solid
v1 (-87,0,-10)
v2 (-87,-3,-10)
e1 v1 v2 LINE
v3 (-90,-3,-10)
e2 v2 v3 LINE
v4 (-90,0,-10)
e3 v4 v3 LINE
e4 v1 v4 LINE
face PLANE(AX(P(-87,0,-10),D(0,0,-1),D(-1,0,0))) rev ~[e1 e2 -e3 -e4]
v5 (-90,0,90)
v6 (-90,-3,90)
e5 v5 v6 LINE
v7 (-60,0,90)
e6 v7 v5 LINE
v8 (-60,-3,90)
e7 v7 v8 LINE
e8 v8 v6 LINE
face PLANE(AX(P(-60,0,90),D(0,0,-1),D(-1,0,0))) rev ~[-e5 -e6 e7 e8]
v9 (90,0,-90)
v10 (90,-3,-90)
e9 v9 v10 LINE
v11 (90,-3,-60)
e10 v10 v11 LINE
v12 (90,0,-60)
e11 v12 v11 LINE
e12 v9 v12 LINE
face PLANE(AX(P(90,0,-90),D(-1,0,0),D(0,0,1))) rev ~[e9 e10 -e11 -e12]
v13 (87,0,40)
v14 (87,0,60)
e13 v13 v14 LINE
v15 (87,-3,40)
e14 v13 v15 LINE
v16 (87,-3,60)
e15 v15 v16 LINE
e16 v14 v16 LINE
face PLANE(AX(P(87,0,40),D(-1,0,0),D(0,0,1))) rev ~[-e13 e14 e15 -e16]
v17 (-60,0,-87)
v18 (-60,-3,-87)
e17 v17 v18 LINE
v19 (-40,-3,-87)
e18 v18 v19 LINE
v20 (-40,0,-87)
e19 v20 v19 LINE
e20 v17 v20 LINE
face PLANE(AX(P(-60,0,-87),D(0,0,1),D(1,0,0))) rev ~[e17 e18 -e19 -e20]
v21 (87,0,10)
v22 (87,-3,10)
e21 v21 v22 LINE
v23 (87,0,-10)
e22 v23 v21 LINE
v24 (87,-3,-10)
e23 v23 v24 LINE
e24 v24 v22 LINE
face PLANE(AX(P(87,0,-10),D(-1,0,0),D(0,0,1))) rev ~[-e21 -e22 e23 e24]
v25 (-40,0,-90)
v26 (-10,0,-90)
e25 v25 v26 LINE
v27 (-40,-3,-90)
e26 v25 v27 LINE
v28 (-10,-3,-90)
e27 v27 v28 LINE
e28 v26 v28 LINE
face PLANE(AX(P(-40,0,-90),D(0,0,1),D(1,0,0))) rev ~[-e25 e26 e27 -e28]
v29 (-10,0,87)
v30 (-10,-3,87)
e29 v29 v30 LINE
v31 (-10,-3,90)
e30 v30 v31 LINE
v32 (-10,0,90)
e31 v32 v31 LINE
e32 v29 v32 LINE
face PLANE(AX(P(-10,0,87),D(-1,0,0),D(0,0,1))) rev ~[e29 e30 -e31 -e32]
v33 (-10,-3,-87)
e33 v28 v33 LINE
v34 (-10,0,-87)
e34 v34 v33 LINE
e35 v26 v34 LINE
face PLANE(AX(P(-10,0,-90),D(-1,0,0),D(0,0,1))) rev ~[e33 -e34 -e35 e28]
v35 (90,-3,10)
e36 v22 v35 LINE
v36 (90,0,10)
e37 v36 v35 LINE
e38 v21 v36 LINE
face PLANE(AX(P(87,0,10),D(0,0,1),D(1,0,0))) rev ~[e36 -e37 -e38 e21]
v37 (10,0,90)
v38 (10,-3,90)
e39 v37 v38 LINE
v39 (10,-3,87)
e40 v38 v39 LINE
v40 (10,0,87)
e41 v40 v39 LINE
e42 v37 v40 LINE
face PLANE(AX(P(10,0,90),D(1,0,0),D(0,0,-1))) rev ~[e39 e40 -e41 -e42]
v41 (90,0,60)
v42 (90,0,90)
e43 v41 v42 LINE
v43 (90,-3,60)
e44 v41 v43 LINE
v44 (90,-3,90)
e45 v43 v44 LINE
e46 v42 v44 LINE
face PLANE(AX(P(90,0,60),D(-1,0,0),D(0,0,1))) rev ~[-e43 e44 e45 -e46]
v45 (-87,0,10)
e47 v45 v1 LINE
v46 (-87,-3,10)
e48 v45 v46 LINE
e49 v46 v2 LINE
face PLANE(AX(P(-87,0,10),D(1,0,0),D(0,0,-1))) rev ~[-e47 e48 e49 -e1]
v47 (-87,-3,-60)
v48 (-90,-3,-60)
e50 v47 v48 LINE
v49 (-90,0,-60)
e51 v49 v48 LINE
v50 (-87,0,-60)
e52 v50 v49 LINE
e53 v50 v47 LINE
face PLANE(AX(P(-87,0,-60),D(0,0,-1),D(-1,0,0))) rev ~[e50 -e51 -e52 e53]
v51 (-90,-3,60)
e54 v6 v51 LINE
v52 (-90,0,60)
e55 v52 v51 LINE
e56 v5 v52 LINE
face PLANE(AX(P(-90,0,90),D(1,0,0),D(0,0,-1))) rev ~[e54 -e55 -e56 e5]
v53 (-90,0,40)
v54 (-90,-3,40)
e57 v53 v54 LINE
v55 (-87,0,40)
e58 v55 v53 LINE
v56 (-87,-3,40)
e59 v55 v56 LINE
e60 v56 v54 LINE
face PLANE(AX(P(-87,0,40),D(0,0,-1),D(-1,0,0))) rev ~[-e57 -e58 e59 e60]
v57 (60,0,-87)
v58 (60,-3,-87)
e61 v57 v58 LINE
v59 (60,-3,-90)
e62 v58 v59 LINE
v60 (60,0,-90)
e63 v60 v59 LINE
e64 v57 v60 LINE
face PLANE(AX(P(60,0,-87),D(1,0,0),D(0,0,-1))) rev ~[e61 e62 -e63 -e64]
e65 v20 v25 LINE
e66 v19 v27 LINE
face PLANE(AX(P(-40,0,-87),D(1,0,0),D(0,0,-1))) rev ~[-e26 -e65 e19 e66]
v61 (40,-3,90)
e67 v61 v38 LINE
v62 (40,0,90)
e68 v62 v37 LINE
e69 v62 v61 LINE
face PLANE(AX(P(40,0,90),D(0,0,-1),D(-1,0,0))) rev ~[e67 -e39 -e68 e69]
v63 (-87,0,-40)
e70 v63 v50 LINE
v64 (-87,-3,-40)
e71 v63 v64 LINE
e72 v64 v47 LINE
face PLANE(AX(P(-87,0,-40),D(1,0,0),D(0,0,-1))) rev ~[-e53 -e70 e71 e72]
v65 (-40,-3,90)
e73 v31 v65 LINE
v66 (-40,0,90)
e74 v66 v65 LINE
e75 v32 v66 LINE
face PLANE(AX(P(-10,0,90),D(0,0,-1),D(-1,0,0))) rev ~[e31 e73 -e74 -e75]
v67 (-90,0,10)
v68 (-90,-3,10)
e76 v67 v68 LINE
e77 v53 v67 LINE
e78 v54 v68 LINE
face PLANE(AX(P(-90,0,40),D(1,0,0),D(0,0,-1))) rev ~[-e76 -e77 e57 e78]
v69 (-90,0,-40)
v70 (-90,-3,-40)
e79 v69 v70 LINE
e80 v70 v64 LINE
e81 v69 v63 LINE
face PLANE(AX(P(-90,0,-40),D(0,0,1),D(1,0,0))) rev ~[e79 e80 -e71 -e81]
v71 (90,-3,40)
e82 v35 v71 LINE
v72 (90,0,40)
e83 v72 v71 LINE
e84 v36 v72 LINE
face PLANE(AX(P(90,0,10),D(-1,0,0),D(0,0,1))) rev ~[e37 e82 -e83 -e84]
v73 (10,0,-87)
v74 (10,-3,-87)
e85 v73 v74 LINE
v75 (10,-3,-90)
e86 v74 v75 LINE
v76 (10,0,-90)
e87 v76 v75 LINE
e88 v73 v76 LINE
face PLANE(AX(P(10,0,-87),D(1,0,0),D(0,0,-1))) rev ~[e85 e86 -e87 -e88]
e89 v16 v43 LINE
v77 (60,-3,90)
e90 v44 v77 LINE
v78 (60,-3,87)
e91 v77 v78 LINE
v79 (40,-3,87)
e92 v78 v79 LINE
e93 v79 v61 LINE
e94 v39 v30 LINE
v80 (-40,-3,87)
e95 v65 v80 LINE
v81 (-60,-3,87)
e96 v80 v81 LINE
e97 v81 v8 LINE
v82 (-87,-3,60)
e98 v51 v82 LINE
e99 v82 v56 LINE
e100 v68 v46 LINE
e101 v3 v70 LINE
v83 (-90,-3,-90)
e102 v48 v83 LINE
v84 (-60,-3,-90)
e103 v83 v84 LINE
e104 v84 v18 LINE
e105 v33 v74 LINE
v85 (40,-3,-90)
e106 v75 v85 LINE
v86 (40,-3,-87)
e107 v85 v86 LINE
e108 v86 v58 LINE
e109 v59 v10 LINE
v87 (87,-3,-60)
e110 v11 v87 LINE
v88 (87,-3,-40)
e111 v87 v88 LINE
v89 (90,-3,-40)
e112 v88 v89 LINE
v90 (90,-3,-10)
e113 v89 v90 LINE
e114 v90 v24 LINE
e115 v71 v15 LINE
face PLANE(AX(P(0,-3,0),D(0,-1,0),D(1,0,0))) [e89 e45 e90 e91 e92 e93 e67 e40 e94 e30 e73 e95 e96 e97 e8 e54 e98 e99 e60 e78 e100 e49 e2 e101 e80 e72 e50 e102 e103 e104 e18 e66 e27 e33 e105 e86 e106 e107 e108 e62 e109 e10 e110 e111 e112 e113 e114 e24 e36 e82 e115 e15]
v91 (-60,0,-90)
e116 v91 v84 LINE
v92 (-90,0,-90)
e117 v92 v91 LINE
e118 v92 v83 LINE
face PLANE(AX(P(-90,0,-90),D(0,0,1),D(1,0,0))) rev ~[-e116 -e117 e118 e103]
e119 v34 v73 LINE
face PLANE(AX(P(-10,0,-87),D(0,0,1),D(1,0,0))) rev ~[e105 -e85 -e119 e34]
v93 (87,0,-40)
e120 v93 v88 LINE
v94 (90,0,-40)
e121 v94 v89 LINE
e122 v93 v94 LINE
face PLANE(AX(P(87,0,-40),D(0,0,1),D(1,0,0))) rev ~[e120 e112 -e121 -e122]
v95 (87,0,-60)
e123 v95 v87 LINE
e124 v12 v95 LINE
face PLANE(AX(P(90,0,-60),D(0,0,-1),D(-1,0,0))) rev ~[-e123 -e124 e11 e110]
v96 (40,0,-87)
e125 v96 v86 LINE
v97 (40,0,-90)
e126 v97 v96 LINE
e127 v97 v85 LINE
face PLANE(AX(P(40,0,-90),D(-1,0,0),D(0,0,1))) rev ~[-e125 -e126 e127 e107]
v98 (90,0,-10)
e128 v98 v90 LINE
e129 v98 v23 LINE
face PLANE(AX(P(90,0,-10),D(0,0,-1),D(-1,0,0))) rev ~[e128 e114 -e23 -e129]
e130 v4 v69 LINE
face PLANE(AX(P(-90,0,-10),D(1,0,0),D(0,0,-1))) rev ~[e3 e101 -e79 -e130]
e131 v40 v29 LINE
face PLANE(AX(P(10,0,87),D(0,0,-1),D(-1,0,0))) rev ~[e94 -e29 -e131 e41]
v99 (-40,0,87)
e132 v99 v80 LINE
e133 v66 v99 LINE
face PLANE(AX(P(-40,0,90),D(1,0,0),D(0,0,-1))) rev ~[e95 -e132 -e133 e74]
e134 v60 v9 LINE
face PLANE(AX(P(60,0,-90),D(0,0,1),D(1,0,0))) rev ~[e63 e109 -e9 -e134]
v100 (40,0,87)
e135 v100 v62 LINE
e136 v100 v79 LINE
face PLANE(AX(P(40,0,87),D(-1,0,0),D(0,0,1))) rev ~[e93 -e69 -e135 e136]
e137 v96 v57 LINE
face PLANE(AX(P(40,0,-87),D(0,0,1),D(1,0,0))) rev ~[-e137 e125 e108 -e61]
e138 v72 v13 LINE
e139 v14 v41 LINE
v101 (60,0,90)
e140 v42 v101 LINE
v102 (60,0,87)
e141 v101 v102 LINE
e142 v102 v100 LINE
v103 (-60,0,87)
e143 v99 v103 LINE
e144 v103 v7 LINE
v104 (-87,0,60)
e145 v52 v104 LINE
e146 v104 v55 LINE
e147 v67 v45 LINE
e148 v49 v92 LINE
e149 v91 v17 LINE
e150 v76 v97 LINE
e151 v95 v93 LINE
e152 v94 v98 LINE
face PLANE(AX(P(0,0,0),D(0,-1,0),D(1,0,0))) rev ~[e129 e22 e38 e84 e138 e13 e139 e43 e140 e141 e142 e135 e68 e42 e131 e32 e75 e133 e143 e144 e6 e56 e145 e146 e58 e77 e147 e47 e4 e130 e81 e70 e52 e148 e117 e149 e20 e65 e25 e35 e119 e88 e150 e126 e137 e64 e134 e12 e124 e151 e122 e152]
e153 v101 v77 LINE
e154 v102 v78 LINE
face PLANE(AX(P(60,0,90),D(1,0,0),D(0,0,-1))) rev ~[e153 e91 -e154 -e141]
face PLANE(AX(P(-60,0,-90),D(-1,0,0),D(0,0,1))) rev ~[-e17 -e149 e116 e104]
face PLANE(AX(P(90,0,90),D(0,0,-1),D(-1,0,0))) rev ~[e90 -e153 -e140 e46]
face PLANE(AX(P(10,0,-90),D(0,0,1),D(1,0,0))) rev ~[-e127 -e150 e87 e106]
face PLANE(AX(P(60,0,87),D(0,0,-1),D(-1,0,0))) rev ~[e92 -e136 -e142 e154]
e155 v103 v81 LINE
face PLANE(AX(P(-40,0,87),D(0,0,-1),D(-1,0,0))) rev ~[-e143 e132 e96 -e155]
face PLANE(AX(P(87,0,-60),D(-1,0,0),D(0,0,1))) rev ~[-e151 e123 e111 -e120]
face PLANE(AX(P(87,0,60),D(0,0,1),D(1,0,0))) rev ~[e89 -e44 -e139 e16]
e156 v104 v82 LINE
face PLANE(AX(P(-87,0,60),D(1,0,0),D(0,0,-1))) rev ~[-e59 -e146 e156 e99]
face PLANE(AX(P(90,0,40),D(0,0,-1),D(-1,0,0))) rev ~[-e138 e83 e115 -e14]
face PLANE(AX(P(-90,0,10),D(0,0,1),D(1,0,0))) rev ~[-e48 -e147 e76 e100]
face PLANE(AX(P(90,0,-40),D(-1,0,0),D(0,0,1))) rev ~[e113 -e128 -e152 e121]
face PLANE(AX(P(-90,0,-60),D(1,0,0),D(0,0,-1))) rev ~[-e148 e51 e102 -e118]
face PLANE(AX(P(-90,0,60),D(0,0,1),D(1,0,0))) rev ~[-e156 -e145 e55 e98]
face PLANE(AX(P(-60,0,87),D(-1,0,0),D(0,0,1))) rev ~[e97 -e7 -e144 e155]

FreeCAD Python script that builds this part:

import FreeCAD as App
import Part
import Sketcher


def add_polygon(sketch, points):
    """Adds a closed chain of lines whose ends are joined by coincident constraints."""
    first, n = sketch.GeometryCount, len(points)
    for a, b in zip(points, points[1:] + points[:1]):
        sketch.addGeometry(Part.LineSegment(App.Vector(*a, 0), App.Vector(*b, 0)), False)
    for i in range(n):
        sketch.addConstraint(Sketcher.Constraint("Coincident", first + i, 2, first + (i + 1) % n, 1))

doc = App.newDocument("Part")
params = doc.addObject("Spreadsheet::Sheet", "Params")
for row, (alias, value) in enumerate([
    ("sketch1_width", "30 mm"),
    ("sketch1_width2", "3 mm"),
    ("sketch1_width3", "20 mm"),
    ("pad1_length", "3 mm"),
], start=1):
    params.set(f"A{row}", alias)
    params.set(f"B{row}", "=" + value)
    params.setAlias(f"B{row}", alias)

body = doc.addObject("PartDesign::Body", "Body")

sketch1 = doc.addObject("Sketcher::SketchObject", "Sketch")
body.addObject(sketch1)
sketch1.AttachmentSupport = (doc.XZ_Plane, [""])
sketch1.MapMode = "FlatFace"
add_polygon(sketch1, [(60, -90), (90, -90), (90, -60), (87, -60), (87, -40), (90, -40), (90, -10), (87, -10), (87, 10), (90, 10), (90, 40), (87, 40), (87, 60), (90, 60), (90, 90), (60, 90), (60, 87), (40, 87), (40, 90), (10, 90), (10, 87), (-10, 87), (-10, 90), (-40, 90), (-40, 87), (-60, 87), (-60, 90), (-90, 90), (-90, 60), (-87, 60), (-87, 40), (-90, 40), (-90, 10), (-87, 10), (-87, -10), (-90, -10), (-90, -40), (-87, -40), (-87, -60), (-90, -60), (-90, -90), (-60, -90), (-60, -87), (-40, -87), (-40, -90), (-10, -90), (-10, -87), (10, -87), (10, -90), (40, -90), (40, -87), (60, -87)])
sketch1.addConstraint([
    Sketcher.Constraint("Horizontal", 0),
    Sketcher.Constraint("Vertical", 1),
    Sketcher.Constraint("Horizontal", 2),
    Sketcher.Constraint("Vertical", 3),
    Sketcher.Constraint("Horizontal", 4),
    Sketcher.Constraint("Vertical", 5),
    Sketcher.Constraint("Horizontal", 6),
    Sketcher.Constraint("Vertical", 7),
    Sketcher.Constraint("Horizontal", 8),
    Sketcher.Constraint("Vertical", 9),
    Sketcher.Constraint("Horizontal", 10),
    Sketcher.Constraint("Vertical", 11),
    Sketcher.Constraint("Horizontal", 12),
    Sketcher.Constraint("Vertical", 13),
    Sketcher.Constraint("Horizontal", 14),
    Sketcher.Constraint("Vertical", 15),
    Sketcher.Constraint("Horizontal", 16),
    Sketcher.Constraint("Vertical", 17),
    Sketcher.Constraint("Horizontal", 18),
    Sketcher.Constraint("Vertical", 19),
    Sketcher.Constraint("Horizontal", 20),
    Sketcher.Constraint("Vertical", 21),
    Sketcher.Constraint("Horizontal", 22),
    Sketcher.Constraint("Vertical", 23),
    Sketcher.Constraint("Horizontal", 24),
    Sketcher.Constraint("Vertical", 25),
    Sketcher.Constraint("Horizontal", 26),
    Sketcher.Constraint("Vertical", 27),
    Sketcher.Constraint("Horizontal", 28),
    Sketcher.Constraint("Vertical", 29),
    Sketcher.Constraint("Horizontal", 30),
    Sketcher.Constraint("Vertical", 31),
    Sketcher.Constraint("Horizontal", 32),
    Sketcher.Constraint("Vertical", 33),
    Sketcher.Constraint("Horizontal", 34),
    Sketcher.Constraint("Vertical", 35),
    Sketcher.Constraint("Horizontal", 36),
    Sketcher.Constraint("Vertical", 37),
    Sketcher.Constraint("Horizontal", 38),
    Sketcher.Constraint("Vertical", 39),
    Sketcher.Constraint("Horizontal", 40),
    Sketcher.Constraint("Vertical", 41),
    Sketcher.Constraint("Horizontal", 42),
    Sketcher.Constraint("Vertical", 43),
    Sketcher.Constraint("Horizontal", 44),
    Sketcher.Constraint("Vertical", 45),
    Sketcher.Constraint("Horizontal", 46),
    Sketcher.Constraint("Vertical", 47),
    Sketcher.Constraint("Horizontal", 48),
    Sketcher.Constraint("Vertical", 49),
    Sketcher.Constraint("Horizontal", 50),
    Sketcher.Constraint("Vertical", 51),
    Sketcher.Constraint("Symmetric", 0, 2, 26, 2, -1, 1),
    Sketcher.Constraint("Symmetric", 2, 2, 28, 2, -1, 1),
    Sketcher.Constraint("Symmetric", 4, 2, 30, 2, -1, 1),
    Sketcher.Constraint("Symmetric", 6, 2, 32, 2, -1, 1),
    Sketcher.Constraint("Symmetric", 8, 2, 34, 2, -1, 1),
    Sketcher.Constraint("Symmetric", 10, 2, 36, 2, -1, 1),
    Sketcher.Constraint("Symmetric", 12, 2, 38, 2, -1, 1),
    Sketcher.Constraint("Symmetric", 14, 2, 40, 2, -1, 1),
    Sketcher.Constraint("Symmetric", 16, 2, 42, 2, -1, 1),
    Sketcher.Constraint("Symmetric", 18, 2, 44, 2, -1, 1),
    Sketcher.Constraint("Symmetric", 20, 2, 46, 2, -1, 1),
    Sketcher.Constraint("Symmetric", 22, 2, 48, 2, -1, 1),
    Sketcher.Constraint("Symmetric", 24, 2, 50, 2, -1, 1),
    Sketcher.Constraint("Symmetric", 18, 2, 21, 2, -2),
    Sketcher.Constraint("Symmetric", 16, 2, 23, 2, -2),
    Sketcher.Constraint("Symmetric", 14, 2, 25, 2, -2),
    Sketcher.Constraint("Symmetric", 12, 2, 27, 2, -2),
    Sketcher.Constraint("Symmetric", 10, 2, 29, 2, -2),
    Sketcher.Constraint("Symmetric", 8, 2, 31, 2, -2),
    Sketcher.Constraint("Horizontal", 14, 2, 17, 2),
    Sketcher.Constraint("Horizontal", 16, 2, 19, 2),
    Sketcher.Constraint("Vertical", 1, 2, 4, 2),
    Sketcher.Constraint("Vertical", 3, 2, 6, 2),
    Sketcher.Constraint("Equal", 14, 18),
    Sketcher.Constraint("Equal", 16, 20),
    Sketcher.Constraint("Equal", 48, 1),
    Sketcher.Constraint("Equal", 50, 3),
    Sketcher.Constraint("Equal", 1, 5),
    Sketcher.Constraint("Equal", 3, 7),
    Sketcher.Constraint("Equal", 38, 15),
    Sketcher.Constraint("DistanceX", 0, 1, 0, 2, 30.0),
    Sketcher.Constraint("DistanceX", 2, 2, 2, 1, 3.0),
    Sketcher.Constraint("DistanceX", 16, 2, 16, 1, 20.0),
])
sketch1.setExpression("Constraints[134]", "Params.sketch1_width")
sketch1.setExpression("Constraints[135]", "Params.sketch1_width2")
sketch1.setExpression("Constraints[136]", "Params.sketch1_width3")
pad1 = doc.addObject("PartDesign::Pad", "Pad")
body.addObject(pad1)
pad1.Profile = sketch1
pad1.setExpression("Length", "Params.pad1_length")

doc.recompute()
